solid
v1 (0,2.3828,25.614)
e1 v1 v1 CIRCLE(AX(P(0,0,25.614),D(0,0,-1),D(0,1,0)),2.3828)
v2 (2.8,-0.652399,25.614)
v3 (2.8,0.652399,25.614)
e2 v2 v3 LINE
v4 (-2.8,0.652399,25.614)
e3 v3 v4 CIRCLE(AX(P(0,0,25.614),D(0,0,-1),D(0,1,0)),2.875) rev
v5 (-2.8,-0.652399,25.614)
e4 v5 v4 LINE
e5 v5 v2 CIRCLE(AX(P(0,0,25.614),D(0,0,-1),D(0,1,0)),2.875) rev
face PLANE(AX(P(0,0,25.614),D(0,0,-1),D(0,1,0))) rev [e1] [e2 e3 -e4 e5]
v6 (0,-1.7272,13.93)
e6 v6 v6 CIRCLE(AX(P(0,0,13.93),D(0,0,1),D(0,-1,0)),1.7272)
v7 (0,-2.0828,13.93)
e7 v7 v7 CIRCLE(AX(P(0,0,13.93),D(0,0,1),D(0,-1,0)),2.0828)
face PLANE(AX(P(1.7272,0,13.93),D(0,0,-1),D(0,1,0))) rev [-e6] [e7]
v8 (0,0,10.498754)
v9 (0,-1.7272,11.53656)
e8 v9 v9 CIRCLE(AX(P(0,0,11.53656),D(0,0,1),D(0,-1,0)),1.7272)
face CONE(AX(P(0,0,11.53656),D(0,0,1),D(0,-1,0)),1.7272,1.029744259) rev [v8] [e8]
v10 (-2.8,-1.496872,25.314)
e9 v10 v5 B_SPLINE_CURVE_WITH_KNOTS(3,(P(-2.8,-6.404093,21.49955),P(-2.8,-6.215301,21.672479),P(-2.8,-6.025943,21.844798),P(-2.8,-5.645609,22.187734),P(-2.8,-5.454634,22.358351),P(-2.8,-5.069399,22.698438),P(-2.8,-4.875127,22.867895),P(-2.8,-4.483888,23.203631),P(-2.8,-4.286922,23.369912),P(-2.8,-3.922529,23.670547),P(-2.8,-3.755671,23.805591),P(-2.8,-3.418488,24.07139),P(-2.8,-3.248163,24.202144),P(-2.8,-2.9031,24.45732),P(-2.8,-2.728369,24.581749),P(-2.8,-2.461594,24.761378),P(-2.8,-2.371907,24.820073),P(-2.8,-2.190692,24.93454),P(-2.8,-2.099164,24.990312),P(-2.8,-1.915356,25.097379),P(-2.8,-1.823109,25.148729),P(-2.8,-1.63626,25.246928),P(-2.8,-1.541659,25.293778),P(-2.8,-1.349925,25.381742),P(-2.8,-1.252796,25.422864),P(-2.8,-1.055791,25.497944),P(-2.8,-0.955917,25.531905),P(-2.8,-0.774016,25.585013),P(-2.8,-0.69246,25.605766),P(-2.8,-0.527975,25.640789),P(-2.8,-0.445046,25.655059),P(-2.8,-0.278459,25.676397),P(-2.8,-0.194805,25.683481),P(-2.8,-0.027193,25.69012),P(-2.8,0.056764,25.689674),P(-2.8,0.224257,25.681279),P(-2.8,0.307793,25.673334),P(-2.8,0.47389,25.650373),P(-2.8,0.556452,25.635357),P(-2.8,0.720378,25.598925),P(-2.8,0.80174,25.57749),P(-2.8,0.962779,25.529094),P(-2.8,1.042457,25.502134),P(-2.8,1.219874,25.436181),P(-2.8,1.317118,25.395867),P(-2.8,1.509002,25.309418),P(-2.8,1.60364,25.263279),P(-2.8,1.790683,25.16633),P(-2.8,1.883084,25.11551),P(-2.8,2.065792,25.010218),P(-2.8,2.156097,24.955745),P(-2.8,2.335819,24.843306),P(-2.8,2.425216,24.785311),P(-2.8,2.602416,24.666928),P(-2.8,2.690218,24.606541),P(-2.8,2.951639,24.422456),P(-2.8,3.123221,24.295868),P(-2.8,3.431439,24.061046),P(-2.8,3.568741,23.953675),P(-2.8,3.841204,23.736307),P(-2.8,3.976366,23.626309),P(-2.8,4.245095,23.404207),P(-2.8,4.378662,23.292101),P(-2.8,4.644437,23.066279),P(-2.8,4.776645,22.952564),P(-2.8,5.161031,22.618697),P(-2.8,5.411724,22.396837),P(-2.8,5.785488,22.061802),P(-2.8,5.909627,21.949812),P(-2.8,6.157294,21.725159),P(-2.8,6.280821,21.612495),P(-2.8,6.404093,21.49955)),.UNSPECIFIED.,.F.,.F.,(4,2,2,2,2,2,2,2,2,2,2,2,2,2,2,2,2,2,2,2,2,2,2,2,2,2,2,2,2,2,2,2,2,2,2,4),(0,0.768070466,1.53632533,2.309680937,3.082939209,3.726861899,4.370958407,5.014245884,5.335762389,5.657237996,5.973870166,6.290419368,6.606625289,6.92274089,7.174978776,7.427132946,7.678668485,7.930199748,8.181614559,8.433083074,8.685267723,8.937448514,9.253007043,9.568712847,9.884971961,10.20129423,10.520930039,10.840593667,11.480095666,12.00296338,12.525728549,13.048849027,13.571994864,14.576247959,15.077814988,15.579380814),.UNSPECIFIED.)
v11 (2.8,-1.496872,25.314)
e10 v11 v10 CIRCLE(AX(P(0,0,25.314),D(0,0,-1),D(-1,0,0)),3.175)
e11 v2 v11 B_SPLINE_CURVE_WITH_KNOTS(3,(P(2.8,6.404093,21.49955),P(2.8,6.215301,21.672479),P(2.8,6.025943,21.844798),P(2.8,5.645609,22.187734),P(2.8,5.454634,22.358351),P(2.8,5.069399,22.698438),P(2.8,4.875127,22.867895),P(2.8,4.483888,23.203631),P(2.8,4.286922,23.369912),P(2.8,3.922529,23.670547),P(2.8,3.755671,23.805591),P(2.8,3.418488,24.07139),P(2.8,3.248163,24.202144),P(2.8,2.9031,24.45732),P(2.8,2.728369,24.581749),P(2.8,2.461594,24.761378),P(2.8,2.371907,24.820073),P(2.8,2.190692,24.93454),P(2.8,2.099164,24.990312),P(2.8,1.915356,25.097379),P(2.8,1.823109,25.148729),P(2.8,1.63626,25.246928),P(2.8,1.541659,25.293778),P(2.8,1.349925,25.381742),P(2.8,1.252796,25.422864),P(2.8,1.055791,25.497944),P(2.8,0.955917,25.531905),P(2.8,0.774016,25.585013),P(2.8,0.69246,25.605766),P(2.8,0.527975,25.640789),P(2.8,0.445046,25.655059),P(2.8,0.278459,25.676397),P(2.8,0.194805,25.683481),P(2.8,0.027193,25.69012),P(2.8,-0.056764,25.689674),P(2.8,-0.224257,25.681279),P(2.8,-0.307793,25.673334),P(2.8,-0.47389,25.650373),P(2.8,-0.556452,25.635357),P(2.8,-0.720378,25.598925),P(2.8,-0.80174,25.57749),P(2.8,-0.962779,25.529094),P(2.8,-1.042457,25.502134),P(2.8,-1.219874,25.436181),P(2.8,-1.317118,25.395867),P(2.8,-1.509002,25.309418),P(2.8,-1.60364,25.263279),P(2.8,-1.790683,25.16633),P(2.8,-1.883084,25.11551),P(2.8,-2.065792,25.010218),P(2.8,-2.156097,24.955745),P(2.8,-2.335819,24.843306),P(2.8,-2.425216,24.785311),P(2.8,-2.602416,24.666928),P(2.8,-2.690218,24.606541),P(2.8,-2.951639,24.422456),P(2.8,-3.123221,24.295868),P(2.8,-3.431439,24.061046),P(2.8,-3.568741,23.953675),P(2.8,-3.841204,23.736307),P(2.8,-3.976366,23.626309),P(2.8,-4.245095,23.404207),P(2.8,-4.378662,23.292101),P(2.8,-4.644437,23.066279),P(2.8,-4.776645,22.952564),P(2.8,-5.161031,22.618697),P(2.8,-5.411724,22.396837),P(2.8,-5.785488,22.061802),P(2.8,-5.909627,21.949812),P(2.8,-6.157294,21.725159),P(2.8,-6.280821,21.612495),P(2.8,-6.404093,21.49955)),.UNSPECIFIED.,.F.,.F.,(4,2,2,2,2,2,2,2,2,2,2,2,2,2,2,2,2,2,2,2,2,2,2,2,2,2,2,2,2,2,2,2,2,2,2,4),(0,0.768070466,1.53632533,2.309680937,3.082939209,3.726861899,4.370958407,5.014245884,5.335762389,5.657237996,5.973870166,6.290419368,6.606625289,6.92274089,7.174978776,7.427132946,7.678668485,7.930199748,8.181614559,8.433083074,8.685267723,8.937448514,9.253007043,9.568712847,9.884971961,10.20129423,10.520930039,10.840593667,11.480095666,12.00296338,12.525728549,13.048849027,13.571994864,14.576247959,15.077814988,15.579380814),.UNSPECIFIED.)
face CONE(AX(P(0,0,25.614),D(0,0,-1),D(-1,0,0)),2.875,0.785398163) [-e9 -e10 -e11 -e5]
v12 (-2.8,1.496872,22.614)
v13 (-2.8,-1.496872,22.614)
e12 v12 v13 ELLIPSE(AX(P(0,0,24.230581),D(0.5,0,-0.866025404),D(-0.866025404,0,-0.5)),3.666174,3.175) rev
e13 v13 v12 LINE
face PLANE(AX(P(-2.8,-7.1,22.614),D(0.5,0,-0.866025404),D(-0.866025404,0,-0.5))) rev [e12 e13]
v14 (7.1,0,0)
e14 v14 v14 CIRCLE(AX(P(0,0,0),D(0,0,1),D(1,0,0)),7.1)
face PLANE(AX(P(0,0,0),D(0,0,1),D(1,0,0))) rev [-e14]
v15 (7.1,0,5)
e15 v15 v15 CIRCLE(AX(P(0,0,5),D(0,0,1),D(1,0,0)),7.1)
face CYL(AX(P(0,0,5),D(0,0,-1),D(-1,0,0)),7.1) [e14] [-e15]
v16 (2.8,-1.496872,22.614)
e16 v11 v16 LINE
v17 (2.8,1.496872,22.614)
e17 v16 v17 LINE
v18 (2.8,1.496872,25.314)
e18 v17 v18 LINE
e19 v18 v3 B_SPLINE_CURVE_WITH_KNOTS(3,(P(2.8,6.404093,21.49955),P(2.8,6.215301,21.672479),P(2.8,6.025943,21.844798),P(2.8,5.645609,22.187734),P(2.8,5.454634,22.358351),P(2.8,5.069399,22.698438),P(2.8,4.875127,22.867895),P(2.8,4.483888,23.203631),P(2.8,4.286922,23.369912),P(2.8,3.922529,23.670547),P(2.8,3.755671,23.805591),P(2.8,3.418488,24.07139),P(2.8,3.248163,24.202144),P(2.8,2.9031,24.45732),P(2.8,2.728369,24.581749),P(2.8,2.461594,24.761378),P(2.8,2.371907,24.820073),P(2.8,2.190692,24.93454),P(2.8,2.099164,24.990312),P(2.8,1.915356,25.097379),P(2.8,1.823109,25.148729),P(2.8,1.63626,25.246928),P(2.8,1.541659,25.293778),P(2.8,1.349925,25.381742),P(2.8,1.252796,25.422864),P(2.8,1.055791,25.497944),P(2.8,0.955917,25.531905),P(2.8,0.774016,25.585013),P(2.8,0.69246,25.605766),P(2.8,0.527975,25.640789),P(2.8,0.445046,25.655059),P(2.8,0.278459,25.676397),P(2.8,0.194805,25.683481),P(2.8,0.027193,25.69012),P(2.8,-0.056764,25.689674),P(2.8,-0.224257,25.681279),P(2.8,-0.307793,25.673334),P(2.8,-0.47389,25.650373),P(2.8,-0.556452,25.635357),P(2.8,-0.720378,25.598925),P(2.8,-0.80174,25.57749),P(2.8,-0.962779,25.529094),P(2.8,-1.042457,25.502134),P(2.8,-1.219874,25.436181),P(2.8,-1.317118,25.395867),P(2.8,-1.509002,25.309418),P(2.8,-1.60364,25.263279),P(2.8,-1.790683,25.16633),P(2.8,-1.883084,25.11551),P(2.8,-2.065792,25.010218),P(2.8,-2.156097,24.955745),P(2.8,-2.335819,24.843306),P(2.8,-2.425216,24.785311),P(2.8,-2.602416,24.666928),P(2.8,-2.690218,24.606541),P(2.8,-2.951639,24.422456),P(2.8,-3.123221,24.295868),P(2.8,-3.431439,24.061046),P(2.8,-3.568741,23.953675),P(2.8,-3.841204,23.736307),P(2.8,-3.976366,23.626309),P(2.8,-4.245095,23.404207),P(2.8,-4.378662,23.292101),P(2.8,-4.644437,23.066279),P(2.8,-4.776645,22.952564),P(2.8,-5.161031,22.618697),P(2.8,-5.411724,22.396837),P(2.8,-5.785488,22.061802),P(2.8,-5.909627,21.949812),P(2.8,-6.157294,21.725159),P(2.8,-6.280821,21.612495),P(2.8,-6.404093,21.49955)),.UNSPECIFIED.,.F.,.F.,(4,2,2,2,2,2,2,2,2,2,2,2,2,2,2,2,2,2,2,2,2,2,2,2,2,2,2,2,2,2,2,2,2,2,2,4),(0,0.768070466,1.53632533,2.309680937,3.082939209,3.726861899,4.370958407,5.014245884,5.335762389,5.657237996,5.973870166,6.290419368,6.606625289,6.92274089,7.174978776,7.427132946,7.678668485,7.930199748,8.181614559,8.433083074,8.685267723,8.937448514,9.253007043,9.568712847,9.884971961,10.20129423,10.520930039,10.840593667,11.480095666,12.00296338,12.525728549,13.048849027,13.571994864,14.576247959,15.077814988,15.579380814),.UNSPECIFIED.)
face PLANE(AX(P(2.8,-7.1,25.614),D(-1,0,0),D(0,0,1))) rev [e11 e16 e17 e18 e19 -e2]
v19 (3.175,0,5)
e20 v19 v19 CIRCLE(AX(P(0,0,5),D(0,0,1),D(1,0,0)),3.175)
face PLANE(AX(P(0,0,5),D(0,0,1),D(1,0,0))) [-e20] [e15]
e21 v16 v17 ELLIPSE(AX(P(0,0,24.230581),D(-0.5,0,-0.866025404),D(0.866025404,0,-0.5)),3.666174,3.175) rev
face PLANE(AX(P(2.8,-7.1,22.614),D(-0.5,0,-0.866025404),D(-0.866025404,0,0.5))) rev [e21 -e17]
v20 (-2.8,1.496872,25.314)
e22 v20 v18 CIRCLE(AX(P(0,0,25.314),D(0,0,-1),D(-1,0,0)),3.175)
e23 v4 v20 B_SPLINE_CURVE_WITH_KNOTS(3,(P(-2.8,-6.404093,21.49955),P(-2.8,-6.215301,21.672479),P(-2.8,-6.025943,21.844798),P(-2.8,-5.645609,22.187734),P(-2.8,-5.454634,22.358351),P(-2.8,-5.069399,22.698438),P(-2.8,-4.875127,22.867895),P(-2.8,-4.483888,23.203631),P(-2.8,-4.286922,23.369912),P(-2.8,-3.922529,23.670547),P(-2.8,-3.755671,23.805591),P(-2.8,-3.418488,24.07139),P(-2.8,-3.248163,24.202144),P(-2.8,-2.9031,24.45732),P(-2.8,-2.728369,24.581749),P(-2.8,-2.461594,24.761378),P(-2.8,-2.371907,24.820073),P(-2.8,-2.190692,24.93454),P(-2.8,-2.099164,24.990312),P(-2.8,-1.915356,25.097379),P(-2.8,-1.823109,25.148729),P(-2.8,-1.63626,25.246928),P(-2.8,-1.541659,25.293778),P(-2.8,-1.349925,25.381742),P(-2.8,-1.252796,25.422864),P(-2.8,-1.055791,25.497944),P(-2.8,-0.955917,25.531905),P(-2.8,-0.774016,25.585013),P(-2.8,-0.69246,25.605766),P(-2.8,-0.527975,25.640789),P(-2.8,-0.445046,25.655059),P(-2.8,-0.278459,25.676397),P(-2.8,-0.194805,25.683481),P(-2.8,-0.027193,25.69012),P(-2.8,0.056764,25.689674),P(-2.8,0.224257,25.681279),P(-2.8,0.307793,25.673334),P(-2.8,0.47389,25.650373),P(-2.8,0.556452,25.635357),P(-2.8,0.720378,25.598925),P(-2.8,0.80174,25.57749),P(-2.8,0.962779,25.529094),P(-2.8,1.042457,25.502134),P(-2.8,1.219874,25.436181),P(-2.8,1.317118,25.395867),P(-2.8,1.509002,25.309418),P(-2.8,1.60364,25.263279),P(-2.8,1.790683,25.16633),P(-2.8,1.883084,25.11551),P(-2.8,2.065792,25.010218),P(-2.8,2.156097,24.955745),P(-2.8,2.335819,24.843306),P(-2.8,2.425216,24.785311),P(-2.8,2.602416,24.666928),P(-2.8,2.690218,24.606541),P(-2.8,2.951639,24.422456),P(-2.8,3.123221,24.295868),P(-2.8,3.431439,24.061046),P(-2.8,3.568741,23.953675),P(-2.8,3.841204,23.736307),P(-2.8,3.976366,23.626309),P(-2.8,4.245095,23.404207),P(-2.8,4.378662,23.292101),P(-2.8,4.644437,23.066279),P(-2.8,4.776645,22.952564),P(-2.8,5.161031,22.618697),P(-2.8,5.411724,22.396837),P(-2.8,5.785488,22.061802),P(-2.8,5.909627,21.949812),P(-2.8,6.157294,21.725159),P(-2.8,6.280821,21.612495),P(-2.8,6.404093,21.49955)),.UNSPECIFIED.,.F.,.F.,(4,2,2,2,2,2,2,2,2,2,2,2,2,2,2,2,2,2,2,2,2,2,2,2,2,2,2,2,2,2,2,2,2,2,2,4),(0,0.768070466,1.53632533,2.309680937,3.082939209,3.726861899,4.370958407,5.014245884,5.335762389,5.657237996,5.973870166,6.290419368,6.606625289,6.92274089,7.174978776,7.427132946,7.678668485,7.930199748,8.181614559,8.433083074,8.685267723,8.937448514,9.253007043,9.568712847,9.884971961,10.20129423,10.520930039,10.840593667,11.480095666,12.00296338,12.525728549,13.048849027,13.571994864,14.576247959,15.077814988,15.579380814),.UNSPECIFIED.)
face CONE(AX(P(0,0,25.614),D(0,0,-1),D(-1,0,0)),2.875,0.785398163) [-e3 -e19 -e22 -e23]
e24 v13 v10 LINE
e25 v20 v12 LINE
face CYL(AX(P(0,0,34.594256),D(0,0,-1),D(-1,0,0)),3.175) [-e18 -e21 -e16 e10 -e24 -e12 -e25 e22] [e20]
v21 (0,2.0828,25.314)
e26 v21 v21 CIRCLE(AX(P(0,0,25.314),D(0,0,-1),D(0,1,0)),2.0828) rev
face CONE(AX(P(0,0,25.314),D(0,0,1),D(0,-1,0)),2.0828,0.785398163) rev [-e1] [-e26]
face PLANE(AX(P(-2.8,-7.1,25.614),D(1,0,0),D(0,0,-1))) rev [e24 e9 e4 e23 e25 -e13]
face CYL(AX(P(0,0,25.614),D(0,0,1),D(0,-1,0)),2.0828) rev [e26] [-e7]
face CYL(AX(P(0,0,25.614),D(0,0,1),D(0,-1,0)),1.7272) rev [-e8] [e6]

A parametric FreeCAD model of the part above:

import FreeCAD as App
import Part
import Sketcher
from FreeCAD import Vector
Q = App.Units.Quantity


def edges_at(feature, points):
    """Names of the edges that pass closest to the given points."""
    edges = feature.Shape.Edges
    near = lambda p: min(range(len(edges)), key=lambda i: edges[i].distToShape(Part.Vertex(*p))[0])
    return sorted({f"Edge{near(p) + 1}" for p in points})

doc = App.newDocument("Part")
body = doc.addObject("PartDesign::Body", "Body")

# Sketch on XY plane
sketch1 = body.newObject("Sketcher::SketchObject", "Sketch")
sketch1.AttachmentSupport = (doc.getObject("XY_Plane"), [""])
sketch1.MapMode = "FlatFace"
sketch1.addGeometry(Part.Circle(Vector(0, 0, 0), Vector(0, 0, 1), 7), False)
sketch1.addConstraint(Sketcher.Constraint("Coincident", 0, 3, -1, 1))
sketch1.addConstraint(Sketcher.Constraint("Diameter", 0, Q("14.2 mm")))
pad1 = body.newObject("PartDesign::Pad", "Pad")
pad1.Profile = sketch1
pad1.Length = 5

# Sketch on XY plane
sketch2 = body.newObject("Sketcher::SketchObject", "Sketch001")
sketch2.AttachmentSupport = (doc.getObject("XY_Plane"), [""])
sketch2.MapMode = "FlatFace"
sketch2.addGeometry(Part.Circle(Vector(0, 0, 0), Vector(0, 0, 1), 3.2), False)
sketch2.addConstraint(Sketcher.Constraint("Coincident", 0, 3, -1, 1))
sketch2.addConstraint(Sketcher.Constraint("Diameter", 0, Q("6.35 mm")))
pad2 = body.newObject("PartDesign::Pad", "Pad001")
pad2.Profile = sketch2
pad2.Length = 25.614

# Sketch on XY plane
sketch3 = body.newObject("Sketcher::SketchObject", "Sketch002")
sketch3.AttachmentSupport = (doc.getObject("XY_Plane"), [""])
sketch3.MapMode = "FlatFace"
sketch3.AttachmentOffset = App.Placement(Vector(0, 0, 25.614), App.Rotation())
sketch3.addGeometry(Part.Circle(Vector(0, 0, 0), Vector(0, 0, 1), 1.7), False)
sketch3.addConstraint(Sketcher.Constraint("Coincident", 0, 3, -1, 1))
sketch3.addConstraint(Sketcher.Constraint("Diameter", 0, Q("3.4544 mm")))
doc.recompute()
hole = body.newObject("PartDesign::Hole", "Hole")
hole.Profile = sketch3
hole.ThreadType = "None"
hole.Diameter = 3.4544
hole.DepthType = "Dimension"
hole.Depth = 14.07744
hole.DrillPoint = "Angled"
hole.DrillPointAngle = 118
hole.HoleCutType = "Counterbore"
hole.HoleCutDiameter = 4.1656
hole.HoleCutDepth = 11.684
doc.recompute()

chamfer = body.newObject("PartDesign::Chamfer", "Chamfer")
chamfer.Base = (hole, edges_at(hole, [(0, -2.083, 25.614), (0, -3.175, 25.614)]))
chamfer.Size = 0.3

# Sketch on XZ plane
sketch4 = body.newObject("Sketcher::SketchObject", "Sketch003")
sketch4.AttachmentSupport = (doc.getObject("XZ_Plane"), [""])
sketch4.MapMode = "FlatFace"
sketch4.addGeometry(Part.LineSegment(Vector(-2.8, 25.6, 0), Vector(-2.8, 22.6, 0)), False)
sketch4.addGeometry(Part.LineSegment(Vector(-2.8, 22.6, 0), Vector(-7.8, 19.7, 0)), False)
sketch4.addGeometry(Part.LineSegment(Vector(-7.8, 19.7, 0), Vector(-7.8, 25.6, 0)), False)
sketch4.addGeometry(Part.LineSegment(Vector(-7.8, 25.6, 0), Vector(-2.8, 25.6, 0)), False)
sketch4.addGeometry(Part.LineSegment(Vector(2.8, 22.6, 0), Vector(2.8, 25.6, 0)), False)
sketch4.addGeometry(Part.LineSegment(Vector(2.8, 25.6, 0), Vector(7.8, 25.6, 0)), False)
sketch4.addGeometry(Part.LineSegment(Vector(7.8, 25.6, 0), Vector(7.8, 19.7, 0)), False)
sketch4.addGeometry(Part.LineSegment(Vector(7.8, 19.7, 0), Vector(2.8, 22.6, 0)), False)
sketch4.addConstraint(Sketcher.Constraint("Coincident", 0, 2, 1, 1))
sketch4.addConstraint(Sketcher.Constraint("Coincident", 1, 2, 2, 1))
sketch4.addConstraint(Sketcher.Constraint("Coincident", 2, 2, 3, 1))
sketch4.addConstraint(Sketcher.Constraint("Coincident", 3, 2, 0, 1))
sketch4.addConstraint(Sketcher.Constraint("Coincident", 4, 2, 5, 1))
sketch4.addConstraint(Sketcher.Constraint("Coincident", 5, 2, 6, 1))
sketch4.addConstraint(Sketcher.Constraint("Coincident", 6, 2, 7, 1))
sketch4.addConstraint(Sketcher.Constraint("Coincident", 7, 2, 4, 1))
sketch4.addConstraint(Sketcher.Constraint("Vertical", 0))
sketch4.addConstraint(Sketcher.Constraint("Vertical", 2))
sketch4.addConstraint(Sketcher.Constraint("Horizontal", 3))
sketch4.addConstraint(Sketcher.Constraint("Vertical", 4))
sketch4.addConstraint(Sketcher.Constraint("Horizontal", 5))
sketch4.addConstraint(Sketcher.Constraint("Vertical", 6))
sketch4.addConstraint(Sketcher.Constraint("Symmetric", 3, 2, 4, 2, -2))
sketch4.addConstraint(Sketcher.Constraint("Symmetric", 1, 2, 6, 2, -2))
sketch4.addConstraint(Sketcher.Constraint("Horizontal", 0, 2, 7, 2))
sketch4.addConstraint(Sketcher.Constraint("DistanceX", 3, 1, 3, 2, Q("5 mm")))
sketch4.addConstraint(Sketcher.Constraint("DistanceY", 0, 2, 0, 1, Q("3 mm")))
sketch4.addConstraint(Sketcher.Constraint("Angle", 1, Q("-150 deg")))
sketch4.addConstraint(Sketcher.Constraint("DistanceX", 0, 2, -1, 1, Q("2.8 mm")))
sketch4.addConstraint(Sketcher.Constraint("DistanceY", -1, 1, 0, 2, Q("22.614 mm")))
pocket1 = body.newObject("PartDesign::Pocket", "Pocket")
pocket1.Profile = sketch4
pocket1.Type = "ThroughAll"
pocket1.Midplane = True

doc.recompute()
